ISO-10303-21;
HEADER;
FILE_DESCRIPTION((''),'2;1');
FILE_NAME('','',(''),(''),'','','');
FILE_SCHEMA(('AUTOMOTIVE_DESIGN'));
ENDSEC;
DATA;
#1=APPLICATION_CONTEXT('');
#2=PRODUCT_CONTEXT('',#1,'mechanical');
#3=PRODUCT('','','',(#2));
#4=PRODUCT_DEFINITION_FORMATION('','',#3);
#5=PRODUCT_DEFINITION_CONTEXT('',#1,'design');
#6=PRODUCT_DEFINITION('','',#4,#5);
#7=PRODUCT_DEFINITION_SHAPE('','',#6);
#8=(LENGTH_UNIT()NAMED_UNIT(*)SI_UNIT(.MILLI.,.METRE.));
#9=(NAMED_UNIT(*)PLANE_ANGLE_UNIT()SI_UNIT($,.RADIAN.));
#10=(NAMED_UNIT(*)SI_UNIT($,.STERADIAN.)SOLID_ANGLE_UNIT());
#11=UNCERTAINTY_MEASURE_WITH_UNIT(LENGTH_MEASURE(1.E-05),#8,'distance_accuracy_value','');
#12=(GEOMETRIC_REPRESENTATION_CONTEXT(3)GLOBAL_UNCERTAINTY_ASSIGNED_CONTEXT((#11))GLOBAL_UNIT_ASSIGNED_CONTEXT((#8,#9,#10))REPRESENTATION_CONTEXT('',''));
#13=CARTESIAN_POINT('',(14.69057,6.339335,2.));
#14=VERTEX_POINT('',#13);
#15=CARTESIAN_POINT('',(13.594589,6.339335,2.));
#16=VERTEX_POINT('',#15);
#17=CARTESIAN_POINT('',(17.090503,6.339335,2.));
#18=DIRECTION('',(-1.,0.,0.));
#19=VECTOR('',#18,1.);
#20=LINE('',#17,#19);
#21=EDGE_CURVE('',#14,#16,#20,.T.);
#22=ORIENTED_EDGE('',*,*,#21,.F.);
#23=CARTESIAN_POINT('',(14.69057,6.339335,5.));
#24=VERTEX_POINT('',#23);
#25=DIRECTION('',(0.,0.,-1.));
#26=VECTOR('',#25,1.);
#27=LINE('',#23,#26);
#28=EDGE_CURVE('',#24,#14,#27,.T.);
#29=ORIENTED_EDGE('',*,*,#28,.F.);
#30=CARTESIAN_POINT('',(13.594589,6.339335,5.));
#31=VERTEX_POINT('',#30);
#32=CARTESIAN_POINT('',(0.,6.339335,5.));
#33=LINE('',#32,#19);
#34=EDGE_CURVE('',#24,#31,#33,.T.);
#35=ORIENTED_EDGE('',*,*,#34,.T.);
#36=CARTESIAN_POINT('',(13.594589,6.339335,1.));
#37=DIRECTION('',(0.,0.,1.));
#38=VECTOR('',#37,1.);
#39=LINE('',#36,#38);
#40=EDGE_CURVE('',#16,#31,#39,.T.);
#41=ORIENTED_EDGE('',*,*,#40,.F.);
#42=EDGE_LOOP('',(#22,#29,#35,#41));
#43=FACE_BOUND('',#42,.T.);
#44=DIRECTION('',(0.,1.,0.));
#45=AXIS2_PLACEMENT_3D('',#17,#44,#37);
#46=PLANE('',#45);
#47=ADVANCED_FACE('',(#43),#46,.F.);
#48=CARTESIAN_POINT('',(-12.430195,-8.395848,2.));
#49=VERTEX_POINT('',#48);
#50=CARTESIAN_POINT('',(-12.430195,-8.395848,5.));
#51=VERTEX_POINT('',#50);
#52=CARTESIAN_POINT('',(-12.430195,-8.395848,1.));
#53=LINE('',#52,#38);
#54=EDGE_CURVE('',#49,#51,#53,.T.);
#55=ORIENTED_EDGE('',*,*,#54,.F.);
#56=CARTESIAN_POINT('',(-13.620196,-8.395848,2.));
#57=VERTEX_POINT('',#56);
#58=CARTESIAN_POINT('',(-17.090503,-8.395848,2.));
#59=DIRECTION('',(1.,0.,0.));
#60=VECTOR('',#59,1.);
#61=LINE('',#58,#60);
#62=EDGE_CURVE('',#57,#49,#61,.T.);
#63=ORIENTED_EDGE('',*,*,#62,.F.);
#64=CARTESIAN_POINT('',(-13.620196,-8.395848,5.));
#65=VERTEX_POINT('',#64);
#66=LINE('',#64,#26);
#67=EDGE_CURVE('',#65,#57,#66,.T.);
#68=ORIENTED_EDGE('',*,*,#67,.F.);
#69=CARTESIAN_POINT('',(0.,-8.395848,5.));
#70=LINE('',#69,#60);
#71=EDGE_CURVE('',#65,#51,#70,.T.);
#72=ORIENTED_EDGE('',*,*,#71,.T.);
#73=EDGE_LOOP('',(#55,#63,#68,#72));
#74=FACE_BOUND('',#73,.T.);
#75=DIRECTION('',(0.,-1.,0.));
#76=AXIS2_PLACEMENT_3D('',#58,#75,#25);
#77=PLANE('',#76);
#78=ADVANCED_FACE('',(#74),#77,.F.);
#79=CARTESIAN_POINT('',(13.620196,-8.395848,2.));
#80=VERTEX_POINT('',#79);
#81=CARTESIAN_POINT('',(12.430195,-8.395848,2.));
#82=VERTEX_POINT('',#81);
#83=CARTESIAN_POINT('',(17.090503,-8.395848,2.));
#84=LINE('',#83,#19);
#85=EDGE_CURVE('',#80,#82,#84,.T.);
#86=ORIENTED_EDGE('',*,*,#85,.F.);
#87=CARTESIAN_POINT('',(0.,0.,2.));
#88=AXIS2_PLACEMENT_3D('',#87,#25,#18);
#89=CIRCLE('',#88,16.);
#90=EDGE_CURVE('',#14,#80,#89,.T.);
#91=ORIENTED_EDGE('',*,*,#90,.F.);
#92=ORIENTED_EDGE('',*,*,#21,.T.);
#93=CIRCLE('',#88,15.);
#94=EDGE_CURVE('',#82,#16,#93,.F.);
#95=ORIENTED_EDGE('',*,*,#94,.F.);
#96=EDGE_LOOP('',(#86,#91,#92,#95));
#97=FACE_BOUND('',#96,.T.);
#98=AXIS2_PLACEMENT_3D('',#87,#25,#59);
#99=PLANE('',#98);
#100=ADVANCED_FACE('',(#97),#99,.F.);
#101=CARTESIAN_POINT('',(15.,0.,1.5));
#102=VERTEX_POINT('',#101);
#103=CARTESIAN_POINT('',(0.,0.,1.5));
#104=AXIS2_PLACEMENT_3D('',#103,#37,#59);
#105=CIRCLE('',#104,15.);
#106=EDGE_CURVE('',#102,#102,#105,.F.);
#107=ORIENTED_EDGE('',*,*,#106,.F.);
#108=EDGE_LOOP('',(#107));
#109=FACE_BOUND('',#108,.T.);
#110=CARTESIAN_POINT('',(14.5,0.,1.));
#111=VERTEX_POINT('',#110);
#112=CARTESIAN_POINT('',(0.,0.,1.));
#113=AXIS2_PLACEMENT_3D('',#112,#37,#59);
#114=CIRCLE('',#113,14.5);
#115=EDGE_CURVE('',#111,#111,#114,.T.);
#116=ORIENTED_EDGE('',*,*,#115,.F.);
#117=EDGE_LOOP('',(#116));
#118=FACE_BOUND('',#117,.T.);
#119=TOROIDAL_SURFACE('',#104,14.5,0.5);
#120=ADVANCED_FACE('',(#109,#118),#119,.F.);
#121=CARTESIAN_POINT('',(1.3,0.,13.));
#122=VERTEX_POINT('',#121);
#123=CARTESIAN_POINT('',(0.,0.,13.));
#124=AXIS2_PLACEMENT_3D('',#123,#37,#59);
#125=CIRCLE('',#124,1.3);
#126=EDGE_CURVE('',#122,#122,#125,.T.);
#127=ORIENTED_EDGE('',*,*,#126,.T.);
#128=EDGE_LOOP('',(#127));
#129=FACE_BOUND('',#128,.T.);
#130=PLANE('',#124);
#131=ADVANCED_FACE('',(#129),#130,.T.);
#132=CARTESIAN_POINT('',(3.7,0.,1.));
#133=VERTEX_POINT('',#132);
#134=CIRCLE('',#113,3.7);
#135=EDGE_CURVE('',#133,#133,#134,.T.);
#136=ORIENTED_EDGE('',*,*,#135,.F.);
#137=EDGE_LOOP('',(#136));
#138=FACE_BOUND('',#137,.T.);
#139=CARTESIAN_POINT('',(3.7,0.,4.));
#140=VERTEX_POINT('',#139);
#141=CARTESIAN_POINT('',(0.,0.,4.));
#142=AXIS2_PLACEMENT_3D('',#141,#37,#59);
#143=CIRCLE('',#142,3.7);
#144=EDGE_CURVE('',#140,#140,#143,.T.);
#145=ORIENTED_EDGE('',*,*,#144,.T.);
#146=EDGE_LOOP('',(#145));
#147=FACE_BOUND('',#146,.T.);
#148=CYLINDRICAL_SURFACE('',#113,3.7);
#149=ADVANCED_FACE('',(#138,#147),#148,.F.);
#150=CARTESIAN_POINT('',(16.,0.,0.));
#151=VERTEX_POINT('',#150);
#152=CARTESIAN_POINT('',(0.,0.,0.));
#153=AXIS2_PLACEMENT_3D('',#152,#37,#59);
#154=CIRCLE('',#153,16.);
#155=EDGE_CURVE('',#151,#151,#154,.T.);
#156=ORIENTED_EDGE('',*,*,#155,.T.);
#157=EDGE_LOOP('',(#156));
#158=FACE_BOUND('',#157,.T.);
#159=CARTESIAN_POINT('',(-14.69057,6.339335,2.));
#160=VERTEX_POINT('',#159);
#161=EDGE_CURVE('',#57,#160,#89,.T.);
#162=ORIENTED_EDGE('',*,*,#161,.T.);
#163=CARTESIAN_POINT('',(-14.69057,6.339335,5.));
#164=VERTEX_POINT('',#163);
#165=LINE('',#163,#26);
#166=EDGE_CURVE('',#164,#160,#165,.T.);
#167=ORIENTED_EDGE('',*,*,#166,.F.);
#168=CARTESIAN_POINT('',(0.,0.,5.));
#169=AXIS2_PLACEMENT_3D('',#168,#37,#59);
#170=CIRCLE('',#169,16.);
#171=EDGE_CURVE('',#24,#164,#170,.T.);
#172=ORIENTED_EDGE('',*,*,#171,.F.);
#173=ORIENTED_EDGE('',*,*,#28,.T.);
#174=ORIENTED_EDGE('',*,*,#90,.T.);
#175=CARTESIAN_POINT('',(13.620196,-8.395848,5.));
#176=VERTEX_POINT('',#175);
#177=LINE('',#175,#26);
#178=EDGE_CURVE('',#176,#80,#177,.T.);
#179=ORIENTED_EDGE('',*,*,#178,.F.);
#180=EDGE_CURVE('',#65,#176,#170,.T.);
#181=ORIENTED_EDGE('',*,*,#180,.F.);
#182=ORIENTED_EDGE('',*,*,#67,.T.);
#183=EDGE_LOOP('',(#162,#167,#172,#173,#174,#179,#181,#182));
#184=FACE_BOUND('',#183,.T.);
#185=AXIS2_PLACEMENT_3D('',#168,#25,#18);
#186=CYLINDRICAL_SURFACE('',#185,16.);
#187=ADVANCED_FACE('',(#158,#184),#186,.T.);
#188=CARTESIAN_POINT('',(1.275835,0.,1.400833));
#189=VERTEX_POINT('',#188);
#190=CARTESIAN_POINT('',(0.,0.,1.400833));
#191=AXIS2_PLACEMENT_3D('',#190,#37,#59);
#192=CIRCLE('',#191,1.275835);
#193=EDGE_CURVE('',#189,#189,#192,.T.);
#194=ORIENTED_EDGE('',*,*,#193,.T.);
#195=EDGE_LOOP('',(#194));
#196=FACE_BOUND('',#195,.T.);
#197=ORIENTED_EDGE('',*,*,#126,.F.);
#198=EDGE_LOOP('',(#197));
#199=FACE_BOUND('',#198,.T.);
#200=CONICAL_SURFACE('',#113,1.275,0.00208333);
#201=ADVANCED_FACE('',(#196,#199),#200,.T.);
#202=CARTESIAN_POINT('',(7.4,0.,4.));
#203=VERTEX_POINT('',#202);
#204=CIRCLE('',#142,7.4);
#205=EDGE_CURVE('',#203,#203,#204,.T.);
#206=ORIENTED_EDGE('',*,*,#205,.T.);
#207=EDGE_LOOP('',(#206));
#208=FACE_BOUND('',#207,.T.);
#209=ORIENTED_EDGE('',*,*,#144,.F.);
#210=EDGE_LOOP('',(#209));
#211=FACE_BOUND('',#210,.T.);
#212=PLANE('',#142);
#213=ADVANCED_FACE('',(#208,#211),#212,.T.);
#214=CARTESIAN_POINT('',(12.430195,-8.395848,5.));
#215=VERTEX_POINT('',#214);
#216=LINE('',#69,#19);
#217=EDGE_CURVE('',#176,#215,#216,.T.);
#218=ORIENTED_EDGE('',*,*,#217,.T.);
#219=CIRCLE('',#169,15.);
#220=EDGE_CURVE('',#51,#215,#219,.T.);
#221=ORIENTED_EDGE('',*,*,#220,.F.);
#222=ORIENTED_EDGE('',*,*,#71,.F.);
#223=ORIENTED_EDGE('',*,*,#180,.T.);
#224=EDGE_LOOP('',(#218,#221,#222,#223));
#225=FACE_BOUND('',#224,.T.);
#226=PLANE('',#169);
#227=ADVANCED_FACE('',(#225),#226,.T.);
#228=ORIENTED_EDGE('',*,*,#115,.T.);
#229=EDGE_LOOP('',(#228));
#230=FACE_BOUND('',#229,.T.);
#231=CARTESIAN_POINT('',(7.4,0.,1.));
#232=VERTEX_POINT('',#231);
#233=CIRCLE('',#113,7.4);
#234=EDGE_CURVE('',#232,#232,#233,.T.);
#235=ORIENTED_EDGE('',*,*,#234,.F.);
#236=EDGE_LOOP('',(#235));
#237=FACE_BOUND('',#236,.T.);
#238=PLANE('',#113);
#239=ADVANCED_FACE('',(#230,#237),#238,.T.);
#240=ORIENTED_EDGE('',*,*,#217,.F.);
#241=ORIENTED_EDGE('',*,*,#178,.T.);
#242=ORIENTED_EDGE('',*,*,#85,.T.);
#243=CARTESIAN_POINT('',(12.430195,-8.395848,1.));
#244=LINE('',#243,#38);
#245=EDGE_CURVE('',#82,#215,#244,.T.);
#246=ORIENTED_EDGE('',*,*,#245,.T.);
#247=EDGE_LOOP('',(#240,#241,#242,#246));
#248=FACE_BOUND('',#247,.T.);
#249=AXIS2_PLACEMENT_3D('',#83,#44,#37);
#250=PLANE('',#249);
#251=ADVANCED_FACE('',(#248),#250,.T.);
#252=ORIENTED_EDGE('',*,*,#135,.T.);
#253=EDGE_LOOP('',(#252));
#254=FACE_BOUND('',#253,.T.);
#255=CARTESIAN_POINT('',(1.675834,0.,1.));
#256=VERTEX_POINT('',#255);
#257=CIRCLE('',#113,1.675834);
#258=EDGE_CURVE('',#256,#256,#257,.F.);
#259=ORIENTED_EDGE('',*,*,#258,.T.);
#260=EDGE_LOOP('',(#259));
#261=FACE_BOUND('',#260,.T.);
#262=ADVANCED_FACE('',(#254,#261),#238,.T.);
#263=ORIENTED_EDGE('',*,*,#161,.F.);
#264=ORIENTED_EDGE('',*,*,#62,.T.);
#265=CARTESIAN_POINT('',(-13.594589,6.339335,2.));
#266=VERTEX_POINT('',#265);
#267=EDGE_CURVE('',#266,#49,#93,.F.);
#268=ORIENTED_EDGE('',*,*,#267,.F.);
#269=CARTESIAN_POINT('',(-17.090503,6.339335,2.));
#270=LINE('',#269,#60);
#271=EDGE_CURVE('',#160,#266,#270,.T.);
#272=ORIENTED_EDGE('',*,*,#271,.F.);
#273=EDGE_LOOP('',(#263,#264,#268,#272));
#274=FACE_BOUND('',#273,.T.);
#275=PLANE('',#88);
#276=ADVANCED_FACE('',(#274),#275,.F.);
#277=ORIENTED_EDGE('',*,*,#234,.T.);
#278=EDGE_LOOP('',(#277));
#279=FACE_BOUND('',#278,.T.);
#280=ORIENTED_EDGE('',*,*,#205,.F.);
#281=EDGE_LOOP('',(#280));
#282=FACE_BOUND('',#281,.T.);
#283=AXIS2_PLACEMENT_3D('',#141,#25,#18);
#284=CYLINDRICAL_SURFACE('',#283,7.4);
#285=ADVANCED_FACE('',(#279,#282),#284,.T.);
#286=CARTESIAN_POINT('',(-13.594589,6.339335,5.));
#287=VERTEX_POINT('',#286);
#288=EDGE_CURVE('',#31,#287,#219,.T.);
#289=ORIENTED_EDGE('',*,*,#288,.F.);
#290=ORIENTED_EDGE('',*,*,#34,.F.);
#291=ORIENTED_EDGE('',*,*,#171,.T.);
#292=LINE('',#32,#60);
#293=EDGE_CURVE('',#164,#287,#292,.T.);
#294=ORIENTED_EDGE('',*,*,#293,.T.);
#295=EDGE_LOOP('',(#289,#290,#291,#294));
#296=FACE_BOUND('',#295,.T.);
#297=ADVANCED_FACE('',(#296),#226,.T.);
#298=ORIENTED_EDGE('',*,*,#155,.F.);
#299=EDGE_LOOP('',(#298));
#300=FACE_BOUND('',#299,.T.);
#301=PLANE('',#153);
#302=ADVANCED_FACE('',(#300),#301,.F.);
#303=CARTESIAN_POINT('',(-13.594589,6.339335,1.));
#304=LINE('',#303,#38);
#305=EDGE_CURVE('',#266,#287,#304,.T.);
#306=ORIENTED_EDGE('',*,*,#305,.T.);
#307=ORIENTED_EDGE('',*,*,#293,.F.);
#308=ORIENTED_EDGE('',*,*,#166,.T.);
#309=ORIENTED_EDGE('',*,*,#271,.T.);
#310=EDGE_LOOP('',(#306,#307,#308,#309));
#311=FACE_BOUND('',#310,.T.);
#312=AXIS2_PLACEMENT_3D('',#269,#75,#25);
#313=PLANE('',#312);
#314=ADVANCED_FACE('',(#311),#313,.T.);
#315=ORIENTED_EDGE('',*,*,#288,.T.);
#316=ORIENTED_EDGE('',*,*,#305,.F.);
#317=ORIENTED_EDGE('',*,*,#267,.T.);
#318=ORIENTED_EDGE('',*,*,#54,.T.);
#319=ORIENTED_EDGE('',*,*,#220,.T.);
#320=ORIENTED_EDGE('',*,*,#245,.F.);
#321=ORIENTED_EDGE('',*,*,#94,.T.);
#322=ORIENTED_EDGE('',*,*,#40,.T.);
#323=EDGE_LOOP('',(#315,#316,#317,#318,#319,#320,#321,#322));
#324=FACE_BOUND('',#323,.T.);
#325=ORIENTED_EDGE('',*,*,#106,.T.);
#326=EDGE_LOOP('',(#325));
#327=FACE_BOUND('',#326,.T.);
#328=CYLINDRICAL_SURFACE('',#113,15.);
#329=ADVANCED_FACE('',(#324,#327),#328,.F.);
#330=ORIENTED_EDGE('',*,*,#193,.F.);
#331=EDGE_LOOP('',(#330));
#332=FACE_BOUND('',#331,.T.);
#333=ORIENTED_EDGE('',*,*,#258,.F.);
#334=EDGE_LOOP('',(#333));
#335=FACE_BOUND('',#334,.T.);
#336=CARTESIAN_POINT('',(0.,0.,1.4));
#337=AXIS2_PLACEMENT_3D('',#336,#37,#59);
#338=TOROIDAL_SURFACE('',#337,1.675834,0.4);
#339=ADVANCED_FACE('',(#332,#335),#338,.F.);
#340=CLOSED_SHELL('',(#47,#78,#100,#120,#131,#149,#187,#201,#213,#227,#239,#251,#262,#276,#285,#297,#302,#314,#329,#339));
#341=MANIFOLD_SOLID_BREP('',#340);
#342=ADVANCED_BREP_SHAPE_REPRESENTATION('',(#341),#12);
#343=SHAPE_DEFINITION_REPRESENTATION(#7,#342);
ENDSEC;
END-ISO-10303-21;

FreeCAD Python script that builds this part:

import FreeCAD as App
import Part
import Sketcher
from FreeCAD import Vector
Q = App.Units.Quantity


def edges_at(feature, points):
    """Names of the edges that pass closest to the given points."""
    edges = feature.Shape.Edges
    near = lambda p: min(range(len(edges)), key=lambda i: edges[i].distToShape(Part.Vertex(*p))[0])
    return sorted({f"Edge{near(p) + 1}" for p in points})


def add_polygon(sketch, points):
    """Adds a closed chain of lines whose ends are joined by coincident constraints."""
    first, n = sketch.GeometryCount, len(points)
    for a, b in zip(points, points[1:] + points[:1]):
        sketch.addGeometry(Part.LineSegment(App.Vector(*a, 0), App.Vector(*b, 0)), False)
    for i in range(n):
        sketch.addConstraint(Sketcher.Constraint("Coincident", first + i, 2, first + (i + 1) % n, 1))

doc = App.newDocument("Part")
body = doc.addObject("PartDesign::Body", "Body")

sketch1 = body.newObject("Sketcher::SketchObject", "Sketch")
sketch1.AttachmentSupport = (doc.getObject("XY_Plane"), [""])
sketch1.MapMode = "FlatFace"
sketch1.addGeometry(Part.Circle(Vector(0, 0, 0), Vector(0, 0, 1), 16), False)
sketch1.addConstraint(Sketcher.Constraint("Coincident", 0, 3, -1, 1))
sketch1.addConstraint(Sketcher.Constraint("Diameter", 0, Q("32 mm")))
pad1 = body.newObject("PartDesign::Pad", "Pad")
pad1.Profile = sketch1
pad1.Length = 5

sketch2 = body.newObject("Sketcher::SketchObject", "Sketch001")
sketch2.AttachmentSupport = (doc.getObject("XY_Plane"), [""])
sketch2.MapMode = "FlatFace"
sketch2.AttachmentOffset = App.Placement(Vector(0, 0, 5), App.Rotation())
sketch2.addGeometry(Part.Circle(Vector(0, 0, 0), Vector(0, 0, 1), 15), False)
sketch2.addConstraint(Sketcher.Constraint("Coincident", 0, 3, -1, 1))
sketch2.addConstraint(Sketcher.Constraint("Diameter", 0, Q("30 mm")))
pocket1 = body.newObject("PartDesign::Pocket", "Pocket")
pocket1.Profile = sketch2
pocket1.Length = 4
doc.recompute()

fillet = body.newObject("PartDesign::Fillet", "Fillet")
fillet.Base = (pocket1, edges_at(pocket1, [(-15, 0, 1)]))
fillet.Radius = 0.5

sketch3 = body.newObject("Sketcher::SketchObject", "Sketch002")
sketch3.AttachmentSupport = (doc.getObject("XY_Plane"), [""])
sketch3.MapMode = "FlatFace"
sketch3.AttachmentOffset = App.Placement(Vector(0, 0, 13), App.Rotation())
add_polygon(sketch3, [(-17, 6), (-17, -8), (-12, -8), (-12, 6)])
sketch3.addConstraint(Sketcher.Constraint("Vertical", 0))
sketch3.addConstraint(Sketcher.Constraint("Horizontal", 1))
sketch3.addConstraint(Sketcher.Constraint("Vertical", 2))
sketch3.addConstraint(Sketcher.Constraint("Horizontal", 3))
sketch3.addConstraint(Sketcher.Constraint("DistanceX", 1, 1, 1, 2, Q("5.268501 mm")))
sketch3.addConstraint(Sketcher.Constraint("DistanceY", 0, 2, 0, 1, Q("14.735182 mm")))
sketch3.addConstraint(Sketcher.Constraint("DistanceX", 0, 2, -1, 1, Q("17.090503 mm")))
sketch3.addConstraint(Sketcher.Constraint("DistanceY", 0, 2, -1, 1, Q("8.395848 mm")))
pocket2 = body.newObject("PartDesign::Pocket", "Pocket001")
pocket2.Profile = sketch3
pocket2.Length = 11
doc.recompute()

mirrored = body.newObject("PartDesign::Mirrored", "Mirrored")
mirrored.Originals = [pocket2]
mirrored.MirrorPlane = (doc.getObject("YZ_Plane"), [""])
body.Tip = mirrored

sketch4 = body.newObject("Sketcher::SketchObject", "Sketch003")
sketch4.AttachmentSupport = (doc.getObject("XY_Plane"), [""])
sketch4.MapMode = "FlatFace"
sketch4.AttachmentOffset = App.Placement(Vector(0, 0, 1), App.Rotation())
sketch4.addGeometry(Part.Circle(Vector(0, 0, 0), Vector(0, 0, 1), 7), False)
sketch4.addConstraint(Sketcher.Constraint("Coincident", 0, 3, -1, 1))
sketch4.addConstraint(Sketcher.Constraint("Diameter", 0, Q("14.8 mm")))
pad2 = body.newObject("PartDesign::Pad", "Pad001")
pad2.Profile = sketch4
pad2.Length = 3

sketch5 = body.newObject("Sketcher::SketchObject", "Sketch004")
sketch5.AttachmentSupport = (doc.getObject("XY_Plane"), [""])
sketch5.MapMode = "FlatFace"
sketch5.AttachmentOffset = App.Placement(Vector(0, 0, 4), App.Rotation())
sketch5.addGeometry(Part.Circle(Vector(0, 0, 0), Vector(0, 0, 1), 3.7), False)
sketch5.addConstraint(Sketcher.Constraint("Coincident", 0, 3, -1, 1))
sketch5.addConstraint(Sketcher.Constraint("Diameter", 0, Q("7.4 mm")))
pocket3 = body.newObject("PartDesign::Pocket", "Pocket002")
pocket3.Profile = sketch5
pocket3.Length = 3

sketch6 = body.newObject("Sketcher::SketchObject", "Sketch005")
sketch6.AttachmentSupport = (doc.getObject("XY_Plane"), [""])
sketch6.MapMode = "FlatFace"
sketch6.AttachmentOffset = App.Placement(Vector(0, 0, 1), App.Rotation())
sketch6.addGeometry(Part.Circle(Vector(0, 0, 0), Vector(0, 0, 1), 1.3), False)
sketch6.addConstraint(Sketcher.Constraint("Coincident", 0, 3, -1, 1))
sketch6.addConstraint(Sketcher.Constraint("Diameter", 0, Q("2.55 mm")))

sketch7 = body.newObject("Sketcher::SketchObject", "Sketch006")
sketch7.AttachmentSupport = (doc.getObject("XY_Plane"), [""])
sketch7.MapMode = "FlatFace"
sketch7.AttachmentOffset = App.Placement(Vector(0, 0, 13), App.Rotation())
sketch7.addGeometry(Part.Circle(Vector(0, 0, 0), Vector(0, 0, 1), 1.3), False)
sketch7.addConstraint(Sketcher.Constraint("Coincident", 0, 3, -1, 1))
sketch7.addConstraint(Sketcher.Constraint("Diameter", 0, Q("2.6 mm")))

additiveloft = body.newObject("PartDesign::AdditiveLoft", "AdditiveLoft")
additiveloft.Profile = sketch6
additiveloft.Sections = [sketch7]
doc.recompute()

fillet2 = body.newObject("PartDesign::Fillet", "Fillet001")
fillet2.Base = (additiveloft, edges_at(additiveloft, [(-1.275, 0, 1)]))
fillet2.Radius = 0.4

doc.recompute()
